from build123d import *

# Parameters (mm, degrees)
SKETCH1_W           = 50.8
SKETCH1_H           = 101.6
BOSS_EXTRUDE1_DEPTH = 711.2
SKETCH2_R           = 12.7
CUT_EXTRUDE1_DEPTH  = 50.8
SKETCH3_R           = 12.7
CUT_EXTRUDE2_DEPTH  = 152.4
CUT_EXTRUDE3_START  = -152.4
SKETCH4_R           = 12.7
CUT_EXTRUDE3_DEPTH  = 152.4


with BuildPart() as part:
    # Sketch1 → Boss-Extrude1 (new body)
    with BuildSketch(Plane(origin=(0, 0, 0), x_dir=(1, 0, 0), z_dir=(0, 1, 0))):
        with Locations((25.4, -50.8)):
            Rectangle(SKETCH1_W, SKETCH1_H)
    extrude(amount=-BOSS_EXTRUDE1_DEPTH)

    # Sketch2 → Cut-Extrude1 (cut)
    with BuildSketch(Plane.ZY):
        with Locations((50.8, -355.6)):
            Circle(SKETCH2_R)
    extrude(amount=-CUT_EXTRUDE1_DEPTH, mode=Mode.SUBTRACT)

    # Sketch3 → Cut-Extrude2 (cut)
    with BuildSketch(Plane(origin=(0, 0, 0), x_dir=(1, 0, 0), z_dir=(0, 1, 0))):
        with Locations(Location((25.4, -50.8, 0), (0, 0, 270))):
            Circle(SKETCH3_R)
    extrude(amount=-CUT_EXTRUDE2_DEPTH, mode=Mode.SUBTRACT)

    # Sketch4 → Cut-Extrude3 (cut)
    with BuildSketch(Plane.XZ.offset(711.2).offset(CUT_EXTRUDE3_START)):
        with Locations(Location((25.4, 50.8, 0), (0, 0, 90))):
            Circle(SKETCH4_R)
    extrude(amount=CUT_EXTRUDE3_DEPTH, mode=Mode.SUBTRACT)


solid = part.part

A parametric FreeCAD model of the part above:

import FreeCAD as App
import Part
import Sketcher
Q = App.Units.Quantity


def add_polygon(sketch, points):
    """Adds a closed chain of lines whose ends are joined by coincident constraints."""
    first, n = sketch.GeometryCount, len(points)
    for a, b in zip(points, points[1:] + points[:1]):
        sketch.addGeometry(Part.LineSegment(App.Vector(*a, 0), App.Vector(*b, 0)), False)
    for i in range(n):
        sketch.addConstraint(Sketcher.Constraint("Coincident", first + i, 2, first + (i + 1) % n, 1))

doc = App.newDocument("Part")
params = doc.addObject("Spreadsheet::Sheet", "Params")
for row, (alias, value) in enumerate([
    ("sketch1_width", "2 in"),
    ("sketch1_height", "4 in"),
    ("pad1_length", "28 in"),
    ("sketch2_diameter", "1 in"),
    ("pocket1_length", "2 in"),
    ("sketch3_diameter", "1 in"),
    ("pocket2_length", "6 in"),
    ("sketch4_diameter", "1 in"),
    ("pocket3_length", "6 in"),
], start=1):
    params.set(f"A{row}", alias)
    params.set(f"B{row}", "=" + value)
    params.setAlias(f"B{row}", alias)

body = doc.addObject("PartDesign::Body", "Body")

sketch1 = body.newObject("Sketcher::SketchObject", "Sketch")
sketch1.AttachmentSupport = (doc.getObject("XZ_Plane"), [""])
sketch1.MapMode = "FlatFace"
add_polygon(sketch1, [(0, 0), (0, 102), (51, 102), (51, 0)])
sketch1.addConstraint([
    Sketcher.Constraint("Vertical", 0),
    Sketcher.Constraint("Horizontal", 1),
    Sketcher.Constraint("Vertical", 2),
    Sketcher.Constraint("Horizontal", 3),
    Sketcher.Constraint("Coincident", 3, 2, -1, 1),
    Sketcher.Constraint("DistanceX", 1, 1, 1, 2, Q("2 in")),
    Sketcher.Constraint("DistanceY", 0, 1, 0, 2, Q("4 in")),
])
sketch1.setExpression("Constraints[9]", "Params.sketch1_width")
sketch1.setExpression("Constraints[10]", "Params.sketch1_height")
pad1 = body.newObject("PartDesign::Pad", "Pad")
pad1.Profile = sketch1
pad1.setExpression("Length", "Params.pad1_length")

sketch2 = body.newObject("Sketcher::SketchObject", "Sketch001")
sketch2.AttachmentSupport = (doc.getObject("YZ_Plane"), [""])
sketch2.MapMode = "FlatFace"
sketch2.addGeometry(Part.Circle(App.Vector(-356, 51, 0), App.Vector(0, 0, 1), 13), False)
sketch2.addConstraint([
    Sketcher.Constraint("Diameter", 0, Q("1 in")),
    Sketcher.Constraint("DistanceX", 0, 3, -1, 1, Q("14 in")),
    Sketcher.Constraint("DistanceY", -1, 1, 0, 3, Q("2 in")),
])
sketch2.setExpression("Constraints[0]", "Params.sketch2_diameter")
pocket1 = body.newObject("PartDesign::Pocket", "Pocket")
pocket1.Profile = sketch2
pocket1.setExpression("Length", "Params.pocket1_length")
pocket1.Reversed = True

sketch3 = body.newObject("Sketcher::SketchObject", "Sketch002")
sketch3.AttachmentSupport = (doc.getObject("XZ_Plane"), [""])
sketch3.MapMode = "FlatFace"
sketch3.addGeometry(Part.Circle(App.Vector(25, 51, 0), App.Vector(0, 0, 1), 13), False)
sketch3.addConstraint([
    Sketcher.Constraint("Diameter", 0, Q("1 in")),
    Sketcher.Constraint("DistanceX", -1, 1, 0, 3, Q("1 in")),
    Sketcher.Constraint("DistanceY", -1, 1, 0, 3, Q("2 in")),
])
sketch3.setExpression("Constraints[0]", "Params.sketch3_diameter")
pocket2 = body.newObject("PartDesign::Pocket", "Pocket001")
pocket2.Profile = sketch3
pocket2.setExpression("Length", "Params.pocket2_length")
pocket2.Reversed = True

sketch4 = body.newObject("Sketcher::SketchObject", "Sketch003")
sketch4.AttachmentSupport = (doc.getObject("XZ_Plane"), [""])
sketch4.MapMode = "FlatFace"
sketch4.AttachmentOffset = App.Placement(App.Vector(0, 0, 22 * 25.4), App.Rotation())
sketch4.addGeometry(Part.Circle(App.Vector(25, 51, 0), App.Vector(0, 0, 1), 13), False)
sketch4.addConstraint([
    Sketcher.Constraint("Diameter", 0, Q("1 in")),
    Sketcher.Constraint("DistanceX", -1, 1, 0, 3, Q("1 in")),
    Sketcher.Constraint("DistanceY", -1, 1, 0, 3, Q("2 in")),
])
sketch4.setExpression("Constraints[0]", "Params.sketch4_diameter")
pocket3 = body.newObject("PartDesign::Pocket", "Pocket002")
pocket3.Profile = sketch4
pocket3.setExpression("Length", "Params.pocket3_length")
pocket3.Reversed = True

doc.recompute()
